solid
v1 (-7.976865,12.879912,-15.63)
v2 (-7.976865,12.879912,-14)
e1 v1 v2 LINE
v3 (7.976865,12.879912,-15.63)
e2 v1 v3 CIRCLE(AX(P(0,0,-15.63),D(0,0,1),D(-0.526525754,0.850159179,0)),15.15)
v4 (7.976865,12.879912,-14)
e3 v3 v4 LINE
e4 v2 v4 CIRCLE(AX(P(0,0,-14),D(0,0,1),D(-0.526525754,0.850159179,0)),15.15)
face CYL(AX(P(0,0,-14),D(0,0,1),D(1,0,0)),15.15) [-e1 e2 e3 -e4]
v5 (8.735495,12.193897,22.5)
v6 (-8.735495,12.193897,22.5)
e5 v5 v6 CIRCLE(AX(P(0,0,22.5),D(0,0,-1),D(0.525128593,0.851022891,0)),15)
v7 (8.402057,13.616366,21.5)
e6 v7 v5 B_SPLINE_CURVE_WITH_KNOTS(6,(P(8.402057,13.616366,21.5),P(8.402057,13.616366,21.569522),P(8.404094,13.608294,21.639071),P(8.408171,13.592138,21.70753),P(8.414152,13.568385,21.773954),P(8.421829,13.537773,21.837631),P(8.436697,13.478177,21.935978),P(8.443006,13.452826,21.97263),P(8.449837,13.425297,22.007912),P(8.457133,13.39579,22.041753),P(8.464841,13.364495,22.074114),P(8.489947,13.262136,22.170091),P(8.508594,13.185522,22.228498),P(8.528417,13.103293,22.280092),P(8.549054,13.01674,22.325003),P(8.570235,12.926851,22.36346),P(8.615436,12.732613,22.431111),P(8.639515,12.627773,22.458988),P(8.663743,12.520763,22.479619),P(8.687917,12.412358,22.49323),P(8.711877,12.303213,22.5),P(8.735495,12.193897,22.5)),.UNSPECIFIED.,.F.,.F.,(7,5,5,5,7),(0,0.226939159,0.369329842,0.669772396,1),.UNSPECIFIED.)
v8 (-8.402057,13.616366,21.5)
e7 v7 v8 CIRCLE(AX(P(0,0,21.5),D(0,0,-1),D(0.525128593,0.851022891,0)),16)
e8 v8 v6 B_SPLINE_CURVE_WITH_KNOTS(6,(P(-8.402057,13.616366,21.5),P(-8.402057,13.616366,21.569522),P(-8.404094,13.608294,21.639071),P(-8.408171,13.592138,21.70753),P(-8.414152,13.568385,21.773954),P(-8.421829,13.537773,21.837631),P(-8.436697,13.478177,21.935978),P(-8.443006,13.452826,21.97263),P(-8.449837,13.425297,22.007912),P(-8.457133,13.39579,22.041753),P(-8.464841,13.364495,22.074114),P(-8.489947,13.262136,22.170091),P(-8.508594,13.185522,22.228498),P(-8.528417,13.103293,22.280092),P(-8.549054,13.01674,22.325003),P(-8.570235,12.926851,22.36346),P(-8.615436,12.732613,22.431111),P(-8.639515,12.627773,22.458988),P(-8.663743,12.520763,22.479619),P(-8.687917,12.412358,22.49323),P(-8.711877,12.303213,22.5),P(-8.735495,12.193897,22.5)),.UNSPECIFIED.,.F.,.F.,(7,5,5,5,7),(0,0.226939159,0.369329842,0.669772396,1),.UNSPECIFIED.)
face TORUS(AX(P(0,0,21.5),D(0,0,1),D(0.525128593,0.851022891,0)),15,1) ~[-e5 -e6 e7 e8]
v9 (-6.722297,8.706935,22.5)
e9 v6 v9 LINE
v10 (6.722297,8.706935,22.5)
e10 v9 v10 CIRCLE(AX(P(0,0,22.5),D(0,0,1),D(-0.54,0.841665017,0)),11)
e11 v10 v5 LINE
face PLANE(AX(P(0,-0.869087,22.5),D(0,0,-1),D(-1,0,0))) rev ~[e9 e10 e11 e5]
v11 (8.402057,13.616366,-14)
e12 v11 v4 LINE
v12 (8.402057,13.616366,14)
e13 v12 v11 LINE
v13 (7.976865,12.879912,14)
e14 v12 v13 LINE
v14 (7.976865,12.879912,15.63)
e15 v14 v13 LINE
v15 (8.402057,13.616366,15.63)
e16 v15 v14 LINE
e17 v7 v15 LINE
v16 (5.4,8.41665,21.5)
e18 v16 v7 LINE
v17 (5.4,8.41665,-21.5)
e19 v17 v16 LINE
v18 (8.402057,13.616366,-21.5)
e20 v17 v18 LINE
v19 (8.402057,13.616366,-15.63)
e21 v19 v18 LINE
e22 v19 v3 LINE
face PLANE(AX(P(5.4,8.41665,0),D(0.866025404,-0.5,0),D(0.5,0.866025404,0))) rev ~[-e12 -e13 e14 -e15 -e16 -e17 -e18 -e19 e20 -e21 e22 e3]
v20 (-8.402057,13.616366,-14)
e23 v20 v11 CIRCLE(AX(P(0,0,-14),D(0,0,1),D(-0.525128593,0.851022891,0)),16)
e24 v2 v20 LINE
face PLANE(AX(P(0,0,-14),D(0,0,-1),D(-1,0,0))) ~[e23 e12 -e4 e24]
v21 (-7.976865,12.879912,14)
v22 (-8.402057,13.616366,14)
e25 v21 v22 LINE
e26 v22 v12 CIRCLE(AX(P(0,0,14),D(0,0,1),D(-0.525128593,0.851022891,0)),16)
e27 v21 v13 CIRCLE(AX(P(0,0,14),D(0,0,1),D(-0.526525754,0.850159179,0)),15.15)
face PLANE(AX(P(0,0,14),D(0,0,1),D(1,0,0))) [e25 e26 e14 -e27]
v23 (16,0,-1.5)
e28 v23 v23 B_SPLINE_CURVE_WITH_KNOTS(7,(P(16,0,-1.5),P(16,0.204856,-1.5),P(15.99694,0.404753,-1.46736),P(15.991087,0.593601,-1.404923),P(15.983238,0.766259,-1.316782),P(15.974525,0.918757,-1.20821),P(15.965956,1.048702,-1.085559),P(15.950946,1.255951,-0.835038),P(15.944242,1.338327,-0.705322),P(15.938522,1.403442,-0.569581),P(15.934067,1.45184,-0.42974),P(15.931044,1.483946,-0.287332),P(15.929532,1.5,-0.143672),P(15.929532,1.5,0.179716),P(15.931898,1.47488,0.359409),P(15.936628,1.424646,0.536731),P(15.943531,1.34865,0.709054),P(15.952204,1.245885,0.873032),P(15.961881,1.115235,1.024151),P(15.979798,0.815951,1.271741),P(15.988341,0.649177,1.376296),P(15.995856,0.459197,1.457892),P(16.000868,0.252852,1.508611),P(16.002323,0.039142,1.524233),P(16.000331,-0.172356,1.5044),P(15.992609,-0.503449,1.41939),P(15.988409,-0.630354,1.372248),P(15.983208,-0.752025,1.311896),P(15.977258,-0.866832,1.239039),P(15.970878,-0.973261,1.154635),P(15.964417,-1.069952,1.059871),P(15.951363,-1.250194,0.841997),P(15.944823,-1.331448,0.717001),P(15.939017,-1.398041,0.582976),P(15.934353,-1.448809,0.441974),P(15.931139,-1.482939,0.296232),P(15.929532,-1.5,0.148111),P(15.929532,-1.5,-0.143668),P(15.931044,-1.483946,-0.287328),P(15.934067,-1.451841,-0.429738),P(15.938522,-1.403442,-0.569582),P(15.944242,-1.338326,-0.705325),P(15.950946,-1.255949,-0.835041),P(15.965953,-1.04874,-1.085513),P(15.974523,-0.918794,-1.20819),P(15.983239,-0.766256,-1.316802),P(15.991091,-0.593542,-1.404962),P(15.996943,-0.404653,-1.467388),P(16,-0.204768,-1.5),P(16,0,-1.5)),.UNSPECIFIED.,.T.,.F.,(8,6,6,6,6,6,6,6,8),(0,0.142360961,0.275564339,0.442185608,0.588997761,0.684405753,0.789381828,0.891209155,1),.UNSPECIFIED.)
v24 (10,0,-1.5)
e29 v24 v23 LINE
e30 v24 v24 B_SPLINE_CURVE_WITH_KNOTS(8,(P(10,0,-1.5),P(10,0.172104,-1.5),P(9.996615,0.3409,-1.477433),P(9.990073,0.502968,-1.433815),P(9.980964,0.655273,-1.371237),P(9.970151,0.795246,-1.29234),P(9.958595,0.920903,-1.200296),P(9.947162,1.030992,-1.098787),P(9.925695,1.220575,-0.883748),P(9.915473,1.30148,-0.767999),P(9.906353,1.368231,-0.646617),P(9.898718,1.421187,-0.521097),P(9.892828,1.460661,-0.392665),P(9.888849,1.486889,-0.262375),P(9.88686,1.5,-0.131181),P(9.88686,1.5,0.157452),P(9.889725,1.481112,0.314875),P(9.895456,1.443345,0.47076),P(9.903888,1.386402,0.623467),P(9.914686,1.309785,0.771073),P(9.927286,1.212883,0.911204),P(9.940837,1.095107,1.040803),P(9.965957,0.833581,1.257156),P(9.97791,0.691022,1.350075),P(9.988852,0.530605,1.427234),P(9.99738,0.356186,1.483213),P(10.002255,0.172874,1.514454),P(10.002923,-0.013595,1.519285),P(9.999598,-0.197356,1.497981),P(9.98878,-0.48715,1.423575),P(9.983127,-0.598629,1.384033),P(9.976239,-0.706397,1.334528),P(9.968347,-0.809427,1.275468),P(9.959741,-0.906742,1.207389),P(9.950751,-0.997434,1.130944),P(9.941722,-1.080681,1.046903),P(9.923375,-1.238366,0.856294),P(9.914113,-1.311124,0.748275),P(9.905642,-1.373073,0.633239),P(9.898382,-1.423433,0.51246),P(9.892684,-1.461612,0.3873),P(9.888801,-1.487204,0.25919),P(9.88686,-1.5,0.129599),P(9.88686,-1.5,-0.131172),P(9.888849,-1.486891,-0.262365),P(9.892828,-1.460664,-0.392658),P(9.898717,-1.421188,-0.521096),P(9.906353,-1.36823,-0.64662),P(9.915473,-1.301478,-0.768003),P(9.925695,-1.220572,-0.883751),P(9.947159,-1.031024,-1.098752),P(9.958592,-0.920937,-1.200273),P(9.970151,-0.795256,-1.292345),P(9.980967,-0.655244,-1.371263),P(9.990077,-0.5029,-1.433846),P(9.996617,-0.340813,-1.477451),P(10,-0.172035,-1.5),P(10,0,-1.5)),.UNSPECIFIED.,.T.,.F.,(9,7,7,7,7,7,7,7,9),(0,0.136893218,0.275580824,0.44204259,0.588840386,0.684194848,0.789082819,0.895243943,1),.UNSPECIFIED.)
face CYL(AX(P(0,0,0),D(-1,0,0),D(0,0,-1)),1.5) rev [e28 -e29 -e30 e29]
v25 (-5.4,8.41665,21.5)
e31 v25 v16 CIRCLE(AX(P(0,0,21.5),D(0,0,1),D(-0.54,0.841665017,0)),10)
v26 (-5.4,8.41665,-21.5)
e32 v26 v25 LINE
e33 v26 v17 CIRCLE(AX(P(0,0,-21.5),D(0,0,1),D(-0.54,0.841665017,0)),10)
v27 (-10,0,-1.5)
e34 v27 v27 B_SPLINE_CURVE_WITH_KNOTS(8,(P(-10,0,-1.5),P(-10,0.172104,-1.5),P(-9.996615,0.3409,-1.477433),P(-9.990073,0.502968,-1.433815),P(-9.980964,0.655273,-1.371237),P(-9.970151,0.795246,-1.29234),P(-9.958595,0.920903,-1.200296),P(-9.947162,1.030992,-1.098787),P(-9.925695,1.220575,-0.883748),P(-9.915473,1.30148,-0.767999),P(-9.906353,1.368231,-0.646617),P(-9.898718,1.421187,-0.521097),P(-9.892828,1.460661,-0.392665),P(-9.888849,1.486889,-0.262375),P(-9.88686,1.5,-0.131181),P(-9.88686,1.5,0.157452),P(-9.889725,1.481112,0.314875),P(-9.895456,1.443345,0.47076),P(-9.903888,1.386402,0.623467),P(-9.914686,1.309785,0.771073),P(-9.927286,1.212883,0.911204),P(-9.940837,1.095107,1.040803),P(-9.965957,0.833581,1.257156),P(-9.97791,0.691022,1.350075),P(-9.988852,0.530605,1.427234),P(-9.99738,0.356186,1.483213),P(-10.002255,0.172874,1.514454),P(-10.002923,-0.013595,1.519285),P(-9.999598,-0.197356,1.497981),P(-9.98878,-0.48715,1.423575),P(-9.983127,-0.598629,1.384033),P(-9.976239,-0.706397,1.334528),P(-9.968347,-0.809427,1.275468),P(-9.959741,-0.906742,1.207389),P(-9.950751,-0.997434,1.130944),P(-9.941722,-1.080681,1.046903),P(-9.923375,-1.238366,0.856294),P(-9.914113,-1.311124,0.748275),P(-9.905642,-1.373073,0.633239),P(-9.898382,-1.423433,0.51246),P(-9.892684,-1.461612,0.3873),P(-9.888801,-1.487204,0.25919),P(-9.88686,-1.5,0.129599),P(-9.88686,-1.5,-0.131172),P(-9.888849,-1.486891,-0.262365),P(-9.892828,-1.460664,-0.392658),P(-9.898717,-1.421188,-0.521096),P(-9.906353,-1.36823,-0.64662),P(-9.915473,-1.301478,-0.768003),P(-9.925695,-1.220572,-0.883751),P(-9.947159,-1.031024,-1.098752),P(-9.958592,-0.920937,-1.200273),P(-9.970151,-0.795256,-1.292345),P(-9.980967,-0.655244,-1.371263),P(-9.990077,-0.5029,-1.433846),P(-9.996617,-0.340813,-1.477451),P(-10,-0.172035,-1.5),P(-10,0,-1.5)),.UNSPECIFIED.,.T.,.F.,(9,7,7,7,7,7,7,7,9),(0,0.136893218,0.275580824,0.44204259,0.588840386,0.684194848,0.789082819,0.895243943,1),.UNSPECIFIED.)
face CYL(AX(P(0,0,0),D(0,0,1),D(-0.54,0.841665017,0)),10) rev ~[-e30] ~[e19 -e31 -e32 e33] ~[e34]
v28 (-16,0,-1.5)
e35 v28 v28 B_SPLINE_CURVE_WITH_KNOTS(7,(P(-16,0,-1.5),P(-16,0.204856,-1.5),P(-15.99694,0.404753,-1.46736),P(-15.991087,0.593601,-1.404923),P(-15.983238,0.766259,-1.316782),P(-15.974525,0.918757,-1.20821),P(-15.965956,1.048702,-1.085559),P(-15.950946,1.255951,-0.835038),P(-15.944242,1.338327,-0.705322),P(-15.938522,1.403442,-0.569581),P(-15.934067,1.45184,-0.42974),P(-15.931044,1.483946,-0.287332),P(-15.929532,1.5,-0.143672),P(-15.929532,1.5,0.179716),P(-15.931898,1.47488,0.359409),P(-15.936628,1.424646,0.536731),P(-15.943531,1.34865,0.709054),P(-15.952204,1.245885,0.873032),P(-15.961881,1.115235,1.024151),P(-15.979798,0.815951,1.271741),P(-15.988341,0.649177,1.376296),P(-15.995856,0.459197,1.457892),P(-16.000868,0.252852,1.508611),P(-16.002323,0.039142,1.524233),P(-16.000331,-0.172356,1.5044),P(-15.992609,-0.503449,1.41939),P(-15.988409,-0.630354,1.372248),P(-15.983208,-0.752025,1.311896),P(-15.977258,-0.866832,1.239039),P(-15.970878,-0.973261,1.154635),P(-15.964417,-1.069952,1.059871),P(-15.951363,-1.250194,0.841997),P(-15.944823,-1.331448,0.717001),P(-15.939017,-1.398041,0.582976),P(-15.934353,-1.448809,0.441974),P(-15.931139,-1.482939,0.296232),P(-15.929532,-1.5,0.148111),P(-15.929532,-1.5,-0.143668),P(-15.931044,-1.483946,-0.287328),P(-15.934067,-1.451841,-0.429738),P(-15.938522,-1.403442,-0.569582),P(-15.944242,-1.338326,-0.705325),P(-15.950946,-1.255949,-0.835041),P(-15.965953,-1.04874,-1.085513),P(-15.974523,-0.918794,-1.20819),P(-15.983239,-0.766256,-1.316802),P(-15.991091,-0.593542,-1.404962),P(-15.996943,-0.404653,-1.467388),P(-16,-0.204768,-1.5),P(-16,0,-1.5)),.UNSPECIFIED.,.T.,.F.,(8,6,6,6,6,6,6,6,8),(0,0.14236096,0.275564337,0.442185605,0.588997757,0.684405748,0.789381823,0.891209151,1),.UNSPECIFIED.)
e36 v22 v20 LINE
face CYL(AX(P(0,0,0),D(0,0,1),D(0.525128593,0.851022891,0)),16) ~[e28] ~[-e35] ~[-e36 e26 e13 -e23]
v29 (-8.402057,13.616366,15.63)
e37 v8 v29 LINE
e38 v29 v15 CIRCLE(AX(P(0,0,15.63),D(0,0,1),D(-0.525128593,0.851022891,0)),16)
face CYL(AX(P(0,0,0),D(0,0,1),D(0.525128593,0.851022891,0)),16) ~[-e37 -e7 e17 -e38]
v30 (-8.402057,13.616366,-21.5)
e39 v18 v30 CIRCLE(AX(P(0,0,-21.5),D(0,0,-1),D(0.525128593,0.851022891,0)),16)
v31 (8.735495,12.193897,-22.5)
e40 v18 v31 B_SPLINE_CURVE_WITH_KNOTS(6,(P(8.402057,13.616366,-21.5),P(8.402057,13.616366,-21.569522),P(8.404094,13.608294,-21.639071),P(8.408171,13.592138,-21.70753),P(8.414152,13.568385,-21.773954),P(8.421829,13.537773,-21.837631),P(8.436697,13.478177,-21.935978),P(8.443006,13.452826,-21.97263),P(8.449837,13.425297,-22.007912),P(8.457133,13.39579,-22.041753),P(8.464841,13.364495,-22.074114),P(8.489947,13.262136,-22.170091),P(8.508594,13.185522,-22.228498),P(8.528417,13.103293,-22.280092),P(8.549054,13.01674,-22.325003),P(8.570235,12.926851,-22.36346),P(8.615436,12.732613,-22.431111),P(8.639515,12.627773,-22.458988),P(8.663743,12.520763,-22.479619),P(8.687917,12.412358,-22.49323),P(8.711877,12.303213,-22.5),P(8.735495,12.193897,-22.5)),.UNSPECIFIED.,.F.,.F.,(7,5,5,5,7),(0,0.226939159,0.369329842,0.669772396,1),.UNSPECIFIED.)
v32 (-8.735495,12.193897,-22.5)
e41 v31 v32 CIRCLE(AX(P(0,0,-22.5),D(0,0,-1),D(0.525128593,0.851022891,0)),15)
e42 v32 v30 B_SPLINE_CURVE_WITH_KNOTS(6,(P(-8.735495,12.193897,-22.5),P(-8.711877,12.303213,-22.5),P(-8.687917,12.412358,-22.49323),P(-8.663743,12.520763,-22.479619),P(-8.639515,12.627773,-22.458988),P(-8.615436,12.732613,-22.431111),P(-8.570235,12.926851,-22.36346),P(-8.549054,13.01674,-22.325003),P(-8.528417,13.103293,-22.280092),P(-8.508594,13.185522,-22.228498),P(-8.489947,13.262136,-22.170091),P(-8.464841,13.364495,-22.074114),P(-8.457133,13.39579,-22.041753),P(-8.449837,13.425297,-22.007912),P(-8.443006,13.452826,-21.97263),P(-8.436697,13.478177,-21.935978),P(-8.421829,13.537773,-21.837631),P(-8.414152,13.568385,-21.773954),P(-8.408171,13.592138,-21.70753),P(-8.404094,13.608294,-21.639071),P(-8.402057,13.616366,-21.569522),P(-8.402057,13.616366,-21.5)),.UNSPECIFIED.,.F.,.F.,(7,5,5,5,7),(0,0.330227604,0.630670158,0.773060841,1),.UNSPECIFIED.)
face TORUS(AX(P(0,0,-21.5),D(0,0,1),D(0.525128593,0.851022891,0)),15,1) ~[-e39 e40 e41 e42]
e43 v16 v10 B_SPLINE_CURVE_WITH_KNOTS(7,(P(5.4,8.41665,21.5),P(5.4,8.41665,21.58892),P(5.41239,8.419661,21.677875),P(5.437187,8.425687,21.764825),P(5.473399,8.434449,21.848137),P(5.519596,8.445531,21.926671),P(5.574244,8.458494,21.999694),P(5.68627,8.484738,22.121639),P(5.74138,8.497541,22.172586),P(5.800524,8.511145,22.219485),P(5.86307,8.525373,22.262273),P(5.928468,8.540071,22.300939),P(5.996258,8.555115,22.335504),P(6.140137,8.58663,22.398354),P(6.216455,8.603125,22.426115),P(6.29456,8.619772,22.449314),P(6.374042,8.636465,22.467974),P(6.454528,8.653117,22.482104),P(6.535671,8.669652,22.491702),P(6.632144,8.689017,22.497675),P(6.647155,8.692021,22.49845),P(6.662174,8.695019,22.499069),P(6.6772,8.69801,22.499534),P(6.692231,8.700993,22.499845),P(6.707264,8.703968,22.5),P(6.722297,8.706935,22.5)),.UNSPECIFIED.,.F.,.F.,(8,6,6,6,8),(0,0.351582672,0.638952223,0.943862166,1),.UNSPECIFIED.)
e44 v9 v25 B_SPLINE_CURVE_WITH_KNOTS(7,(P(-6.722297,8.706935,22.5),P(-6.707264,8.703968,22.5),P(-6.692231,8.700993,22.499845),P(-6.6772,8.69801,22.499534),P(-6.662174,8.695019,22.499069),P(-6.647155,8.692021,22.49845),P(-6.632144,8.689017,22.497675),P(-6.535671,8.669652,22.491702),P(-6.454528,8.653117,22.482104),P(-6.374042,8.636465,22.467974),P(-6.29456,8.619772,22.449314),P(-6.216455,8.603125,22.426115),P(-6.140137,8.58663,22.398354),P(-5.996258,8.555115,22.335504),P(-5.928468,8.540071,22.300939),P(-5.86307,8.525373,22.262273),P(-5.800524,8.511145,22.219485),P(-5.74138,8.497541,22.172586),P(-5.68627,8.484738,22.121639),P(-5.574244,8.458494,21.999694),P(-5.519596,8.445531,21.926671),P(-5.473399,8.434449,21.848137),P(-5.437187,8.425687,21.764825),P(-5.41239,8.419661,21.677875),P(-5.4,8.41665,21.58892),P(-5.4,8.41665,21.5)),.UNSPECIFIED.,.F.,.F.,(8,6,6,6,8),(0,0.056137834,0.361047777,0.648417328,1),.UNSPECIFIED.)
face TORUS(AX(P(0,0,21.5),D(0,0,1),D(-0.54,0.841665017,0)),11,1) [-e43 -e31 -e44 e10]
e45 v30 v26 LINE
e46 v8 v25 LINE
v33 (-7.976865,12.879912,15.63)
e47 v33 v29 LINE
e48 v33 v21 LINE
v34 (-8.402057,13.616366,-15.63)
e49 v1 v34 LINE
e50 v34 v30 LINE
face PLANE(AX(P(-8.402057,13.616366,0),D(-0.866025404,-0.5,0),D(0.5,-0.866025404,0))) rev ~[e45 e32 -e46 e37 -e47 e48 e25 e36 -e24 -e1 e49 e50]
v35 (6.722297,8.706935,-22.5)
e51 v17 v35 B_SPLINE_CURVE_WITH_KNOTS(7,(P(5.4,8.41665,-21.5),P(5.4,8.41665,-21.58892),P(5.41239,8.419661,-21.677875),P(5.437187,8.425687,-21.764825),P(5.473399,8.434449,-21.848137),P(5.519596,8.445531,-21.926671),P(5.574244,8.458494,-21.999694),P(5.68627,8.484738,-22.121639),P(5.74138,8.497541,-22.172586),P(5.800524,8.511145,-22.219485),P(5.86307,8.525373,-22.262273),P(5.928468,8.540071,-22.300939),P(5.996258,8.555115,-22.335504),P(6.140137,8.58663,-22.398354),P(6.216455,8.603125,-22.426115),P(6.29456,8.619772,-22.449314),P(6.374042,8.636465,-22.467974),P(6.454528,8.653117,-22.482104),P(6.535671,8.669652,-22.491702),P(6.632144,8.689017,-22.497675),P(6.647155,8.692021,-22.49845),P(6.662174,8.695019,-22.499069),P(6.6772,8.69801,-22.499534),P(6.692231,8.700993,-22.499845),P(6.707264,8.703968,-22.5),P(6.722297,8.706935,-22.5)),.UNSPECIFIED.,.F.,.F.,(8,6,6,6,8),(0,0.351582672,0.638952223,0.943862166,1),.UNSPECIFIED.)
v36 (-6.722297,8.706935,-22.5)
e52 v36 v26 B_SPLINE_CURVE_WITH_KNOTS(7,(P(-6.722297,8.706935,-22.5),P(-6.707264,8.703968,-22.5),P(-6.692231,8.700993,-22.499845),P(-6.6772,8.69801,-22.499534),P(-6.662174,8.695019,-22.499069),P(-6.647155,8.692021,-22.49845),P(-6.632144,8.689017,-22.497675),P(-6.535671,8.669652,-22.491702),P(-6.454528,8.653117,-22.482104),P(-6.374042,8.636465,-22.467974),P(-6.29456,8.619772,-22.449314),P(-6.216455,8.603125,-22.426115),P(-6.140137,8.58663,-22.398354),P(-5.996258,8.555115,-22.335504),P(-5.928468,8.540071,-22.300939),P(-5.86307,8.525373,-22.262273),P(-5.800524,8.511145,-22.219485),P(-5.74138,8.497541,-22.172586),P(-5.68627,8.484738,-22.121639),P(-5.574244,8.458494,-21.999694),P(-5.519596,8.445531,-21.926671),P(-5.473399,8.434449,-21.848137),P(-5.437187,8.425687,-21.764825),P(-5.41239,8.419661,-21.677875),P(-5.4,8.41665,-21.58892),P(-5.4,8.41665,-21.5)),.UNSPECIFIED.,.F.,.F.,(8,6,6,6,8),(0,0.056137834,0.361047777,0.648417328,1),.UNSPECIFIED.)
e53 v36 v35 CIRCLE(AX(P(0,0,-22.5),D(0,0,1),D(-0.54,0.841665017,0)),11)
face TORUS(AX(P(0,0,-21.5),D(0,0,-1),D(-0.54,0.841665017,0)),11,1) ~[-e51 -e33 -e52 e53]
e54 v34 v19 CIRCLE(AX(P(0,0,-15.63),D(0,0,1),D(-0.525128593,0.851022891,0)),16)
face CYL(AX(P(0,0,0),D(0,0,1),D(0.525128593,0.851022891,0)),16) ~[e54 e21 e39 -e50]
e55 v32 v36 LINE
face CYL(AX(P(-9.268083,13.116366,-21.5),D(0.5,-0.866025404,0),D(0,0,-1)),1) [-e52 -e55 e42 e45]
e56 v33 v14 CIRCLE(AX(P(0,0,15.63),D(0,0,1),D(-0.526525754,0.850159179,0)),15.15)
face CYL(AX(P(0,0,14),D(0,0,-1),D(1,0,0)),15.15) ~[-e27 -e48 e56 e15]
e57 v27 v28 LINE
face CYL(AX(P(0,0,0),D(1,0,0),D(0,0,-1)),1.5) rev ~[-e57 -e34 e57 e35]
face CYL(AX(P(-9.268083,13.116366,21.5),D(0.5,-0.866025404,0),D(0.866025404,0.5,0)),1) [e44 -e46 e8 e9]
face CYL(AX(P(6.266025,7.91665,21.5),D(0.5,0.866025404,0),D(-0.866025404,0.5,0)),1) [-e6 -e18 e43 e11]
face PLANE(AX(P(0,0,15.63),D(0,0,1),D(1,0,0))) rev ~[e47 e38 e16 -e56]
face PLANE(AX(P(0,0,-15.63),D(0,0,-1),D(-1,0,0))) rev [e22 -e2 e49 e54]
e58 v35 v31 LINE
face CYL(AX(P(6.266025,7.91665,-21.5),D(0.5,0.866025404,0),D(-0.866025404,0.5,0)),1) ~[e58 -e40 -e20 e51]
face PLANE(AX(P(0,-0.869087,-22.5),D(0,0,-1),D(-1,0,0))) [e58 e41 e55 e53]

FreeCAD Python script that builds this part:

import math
import FreeCAD as App
import Part
import Sketcher
from FreeCAD import Vector
Q = App.Units.Quantity


def edges_at(feature, points):
    """Names of the edges that pass closest to the given points."""
    edges = feature.Shape.Edges
    near = lambda p: min(range(len(edges)), key=lambda i: edges[i].distToShape(Part.Vertex(*p))[0])
    return sorted({f"Edge{near(p) + 1}" for p in points})

doc = App.newDocument("Part")
body = doc.addObject("PartDesign::Body", "Body")

sketch1 = body.newObject("Sketcher::SketchObject", "Sketch")
sketch1.AttachmentSupport = (doc.getObject("XY_Plane"), [""])
sketch1.MapMode = "FlatFace"
sketch1.addGeometry([
    Part.LineSegment(Vector(8, 14, 0), Vector(5, 8, 0)),
    Part.ArcOfCircle(Part.Circle(Vector(0, 0, 0), Vector(0, 0, 1), 10), math.radians(123), math.radians(417)),
    Part.LineSegment(Vector(-5, 8, 0), Vector(-8, 14, 0)),
    Part.ArcOfCircle(Part.Circle(Vector(0, 0, 0), Vector(0, 0, 1), 16), math.radians(122), math.radians(418)),
], False)
sketch1.addConstraint([
    Sketcher.Constraint("Coincident", 0, 2, 1, 2),
    Sketcher.Constraint("Coincident", 1, 1, 2, 1),
    Sketcher.Constraint("Coincident", 2, 2, 3, 1),
    Sketcher.Constraint("Coincident", 3, 2, 0, 1),
    Sketcher.Constraint("Coincident", 1, 3, -1, 1),
    Sketcher.Constraint("Coincident", 3, 3, -1, 1),
    Sketcher.Constraint("Horizontal", 0, 2, 1, 1),
    Sketcher.Constraint("Horizontal", 2, 2, 3, 2),
    Sketcher.Constraint("Radius", 1, 10.0),
    Sketcher.Constraint("Radius", 3, 16.0),
    Sketcher.Constraint("Angle", 0, Q("-120 deg")),
    Sketcher.Constraint("DistanceX", -1, 1, 0, 2, 5.4),
])
pad1 = body.newObject("PartDesign::Pad", "Pad")
pad1.Profile = sketch1
pad1.Length = 45
pad1.Midplane = True

sketch2 = body.newObject("Sketcher::SketchObject", "Sketch001")
sketch2.AttachmentSupport = (doc.getObject("XY_Plane"), [""])
sketch2.MapMode = "FlatFace"
sketch2.AttachmentOffset = App.Placement(Vector(0, 0, 14), App.Rotation())
sketch2.addGeometry([
    Part.Circle(Vector(0, 0, 0), Vector(0, 0, 1), 16),
    Part.Circle(Vector(0, 0, 0), Vector(0, 0, 1), 15),
], False)
sketch2.addConstraint([
    Sketcher.Constraint("Coincident", 0, 3, -1, 1),
    Sketcher.Constraint("Coincident", 1, 3, -1, 1),
    Sketcher.Constraint("Diameter", 0, 32.0),
    Sketcher.Constraint("Diameter", 1, 30.3),
])
pocket1 = body.newObject("PartDesign::Pocket", "Pocket")
pocket1.Profile = sketch2
pocket1.Length = 1.63
pocket1.Reversed = True
doc.recompute()

fillet = body.newObject("PartDesign::Fillet", "Fillet")
fillet.Base = (pocket1, edges_at(pocket1, [
    (0, -16, 22.5),
    (6.901, 11.017, 22.5),
    (0, -10, 22.5),
    (6.901, 11.017, -22.5),
    (0, -16, -22.5),
    (-6.901, 11.017, -22.5),
    (0, -10, -22.5),
    (-6.901, 11.017, 22.5),
]))
fillet.Radius = 1
doc.recompute()

mirrored = body.newObject("PartDesign::Mirrored", "Mirrored")
mirrored.Originals = [pocket1]
mirrored.MirrorPlane = (doc.getObject("XY_Plane"), [""])
body.Tip = mirrored

sketch3 = body.newObject("Sketcher::SketchObject", "Sketch002")
sketch3.AttachmentSupport = (doc.getObject("YZ_Plane"), [""])
sketch3.MapMode = "FlatFace"
sketch3.addGeometry(Part.Circle(Vector(0, 0, 0), Vector(0, 0, 1), 1.5), False)
sketch3.addConstraint([
    Sketcher.Constraint("Coincident", 0, 3, -1, 1),
    Sketcher.Constraint("Diameter", 0, 3.0),
])
pocket2 = body.newObject("PartDesign::Pocket", "Pocket001")
pocket2.Profile = sketch3
pocket2.Type = "ThroughAll"
pocket2.Midplane = True

doc.recompute()
